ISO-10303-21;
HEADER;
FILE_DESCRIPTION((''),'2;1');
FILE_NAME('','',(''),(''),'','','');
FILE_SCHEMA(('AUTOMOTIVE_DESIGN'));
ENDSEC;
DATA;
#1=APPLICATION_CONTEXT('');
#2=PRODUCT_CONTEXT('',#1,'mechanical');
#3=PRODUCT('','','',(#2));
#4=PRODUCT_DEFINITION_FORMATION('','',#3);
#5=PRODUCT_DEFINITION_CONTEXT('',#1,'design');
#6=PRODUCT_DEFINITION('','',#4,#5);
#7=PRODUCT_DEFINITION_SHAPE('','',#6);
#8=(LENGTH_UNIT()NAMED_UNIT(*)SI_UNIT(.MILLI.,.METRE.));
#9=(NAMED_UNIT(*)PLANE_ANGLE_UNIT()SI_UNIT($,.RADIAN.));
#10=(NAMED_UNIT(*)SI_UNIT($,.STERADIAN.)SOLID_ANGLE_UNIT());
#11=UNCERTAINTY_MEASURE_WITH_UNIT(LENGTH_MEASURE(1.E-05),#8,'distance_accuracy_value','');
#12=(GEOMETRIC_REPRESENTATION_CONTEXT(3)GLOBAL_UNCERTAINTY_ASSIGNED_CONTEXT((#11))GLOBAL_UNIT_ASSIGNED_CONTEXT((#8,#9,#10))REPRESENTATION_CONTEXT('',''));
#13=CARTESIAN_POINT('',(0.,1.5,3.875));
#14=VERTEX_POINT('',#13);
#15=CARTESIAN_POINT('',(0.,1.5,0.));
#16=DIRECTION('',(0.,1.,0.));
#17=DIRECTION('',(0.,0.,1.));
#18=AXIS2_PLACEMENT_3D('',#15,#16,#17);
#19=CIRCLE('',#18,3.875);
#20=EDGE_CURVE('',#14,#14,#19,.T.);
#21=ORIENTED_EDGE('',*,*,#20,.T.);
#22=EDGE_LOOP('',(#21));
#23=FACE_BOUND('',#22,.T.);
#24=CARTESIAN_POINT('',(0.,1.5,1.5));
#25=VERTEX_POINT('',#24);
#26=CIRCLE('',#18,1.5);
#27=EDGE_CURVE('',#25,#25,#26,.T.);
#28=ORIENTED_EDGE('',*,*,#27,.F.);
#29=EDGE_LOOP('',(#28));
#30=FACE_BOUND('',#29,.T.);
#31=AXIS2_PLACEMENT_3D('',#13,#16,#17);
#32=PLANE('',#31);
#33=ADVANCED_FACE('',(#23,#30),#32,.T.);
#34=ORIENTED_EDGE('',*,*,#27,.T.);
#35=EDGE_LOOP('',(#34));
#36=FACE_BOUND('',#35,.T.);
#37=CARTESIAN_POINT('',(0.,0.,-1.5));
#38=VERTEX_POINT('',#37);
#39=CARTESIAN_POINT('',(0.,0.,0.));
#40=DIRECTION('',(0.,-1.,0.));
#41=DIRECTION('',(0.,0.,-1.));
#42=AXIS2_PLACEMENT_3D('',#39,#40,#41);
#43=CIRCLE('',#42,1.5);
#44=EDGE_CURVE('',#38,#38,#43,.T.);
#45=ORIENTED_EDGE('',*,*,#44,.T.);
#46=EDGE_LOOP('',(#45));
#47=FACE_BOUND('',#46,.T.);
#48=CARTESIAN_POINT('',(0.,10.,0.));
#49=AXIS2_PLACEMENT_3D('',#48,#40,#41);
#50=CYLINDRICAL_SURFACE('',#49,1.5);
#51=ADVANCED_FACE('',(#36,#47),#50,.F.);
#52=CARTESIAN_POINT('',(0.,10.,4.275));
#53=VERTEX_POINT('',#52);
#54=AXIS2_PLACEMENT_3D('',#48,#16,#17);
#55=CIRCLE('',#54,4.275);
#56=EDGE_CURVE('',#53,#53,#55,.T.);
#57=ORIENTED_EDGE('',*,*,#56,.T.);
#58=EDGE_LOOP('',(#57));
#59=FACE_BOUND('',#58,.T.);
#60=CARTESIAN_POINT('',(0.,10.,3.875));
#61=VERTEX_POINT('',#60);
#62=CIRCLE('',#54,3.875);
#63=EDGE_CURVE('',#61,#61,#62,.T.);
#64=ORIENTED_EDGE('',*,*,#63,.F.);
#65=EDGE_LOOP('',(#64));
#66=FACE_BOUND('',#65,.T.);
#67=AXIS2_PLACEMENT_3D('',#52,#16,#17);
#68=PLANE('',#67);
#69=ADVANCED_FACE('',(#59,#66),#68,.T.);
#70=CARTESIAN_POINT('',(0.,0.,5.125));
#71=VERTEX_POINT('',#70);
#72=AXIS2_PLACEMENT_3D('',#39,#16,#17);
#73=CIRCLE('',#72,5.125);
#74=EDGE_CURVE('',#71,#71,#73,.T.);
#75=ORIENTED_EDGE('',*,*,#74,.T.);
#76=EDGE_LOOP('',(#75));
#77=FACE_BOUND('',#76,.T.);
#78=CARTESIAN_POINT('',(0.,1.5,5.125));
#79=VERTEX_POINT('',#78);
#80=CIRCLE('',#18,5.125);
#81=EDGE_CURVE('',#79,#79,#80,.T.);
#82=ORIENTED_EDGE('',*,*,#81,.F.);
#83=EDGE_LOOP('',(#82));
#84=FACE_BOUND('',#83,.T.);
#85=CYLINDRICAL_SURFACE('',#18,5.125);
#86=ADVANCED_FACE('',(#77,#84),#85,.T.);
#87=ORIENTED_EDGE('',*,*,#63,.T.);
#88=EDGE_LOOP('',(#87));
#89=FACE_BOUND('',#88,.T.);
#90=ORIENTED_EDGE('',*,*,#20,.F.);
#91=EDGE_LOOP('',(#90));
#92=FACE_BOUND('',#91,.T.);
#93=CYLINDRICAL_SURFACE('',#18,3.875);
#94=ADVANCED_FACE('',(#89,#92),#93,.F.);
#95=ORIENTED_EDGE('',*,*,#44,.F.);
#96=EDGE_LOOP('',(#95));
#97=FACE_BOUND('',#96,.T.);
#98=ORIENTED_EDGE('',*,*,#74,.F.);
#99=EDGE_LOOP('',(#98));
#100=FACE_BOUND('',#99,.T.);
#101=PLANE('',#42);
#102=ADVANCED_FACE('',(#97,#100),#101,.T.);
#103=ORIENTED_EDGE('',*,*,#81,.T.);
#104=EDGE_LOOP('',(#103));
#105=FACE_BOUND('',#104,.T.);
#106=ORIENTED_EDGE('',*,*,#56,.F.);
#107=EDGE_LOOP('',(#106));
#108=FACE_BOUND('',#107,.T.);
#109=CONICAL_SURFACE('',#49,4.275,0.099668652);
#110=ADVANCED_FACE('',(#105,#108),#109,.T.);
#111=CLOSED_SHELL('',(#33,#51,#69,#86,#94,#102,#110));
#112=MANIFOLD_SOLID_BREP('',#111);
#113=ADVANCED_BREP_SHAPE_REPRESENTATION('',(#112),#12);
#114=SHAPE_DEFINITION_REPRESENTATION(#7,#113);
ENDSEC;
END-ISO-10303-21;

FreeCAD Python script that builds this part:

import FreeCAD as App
import Part
import Sketcher
from FreeCAD import Vector
Q = App.Units.Quantity


def add_polygon(sketch, points):
    """Adds a closed chain of lines whose ends are joined by coincident constraints."""
    first, n = sketch.GeometryCount, len(points)
    for a, b in zip(points, points[1:] + points[:1]):
        sketch.addGeometry(Part.LineSegment(App.Vector(*a, 0), App.Vector(*b, 0)), False)
    for i in range(n):
        sketch.addConstraint(Sketcher.Constraint("Coincident", first + i, 2, first + (i + 1) % n, 1))

doc = App.newDocument("Part")
body = doc.addObject("PartDesign::Body", "Body")

# Sketch on YZ plane
sketch1 = doc.addObject("Sketcher::SketchObject", "Sketch")
body.addObject(sketch1)
sketch1.AttachmentSupport = (doc.YZ_Plane, [""])
sketch1.MapMode = "FlatFace"
add_polygon(sketch1, [(0, 5.12), (0, 0), (1.5, 0), (1.5, 3.88), (10, 3.88), (10, 4.28), (1.5, 5.12)])  # lines 0-6
sketch1.addConstraint([
    Sketcher.Constraint("Vertical", 0),
    Sketcher.Constraint("Horizontal", 1),
    Sketcher.Constraint("Vertical", 2),
    Sketcher.Constraint("Horizontal", 3),
    Sketcher.Constraint("Vertical", 4),
    Sketcher.Constraint("Horizontal", 6),
    Sketcher.Constraint("Coincident", 0, 2, -1, 1),
    Sketcher.Constraint("Vertical", 2, 2, 5, 2),
    Sketcher.Constraint("DistanceX", 1, 1, 1, 2, Q("1.5 mm")),
    Sketcher.Constraint("DistanceX", 3, 1, 3, 2, Q("8.5 mm")),
    Sketcher.Constraint("DistanceY", 4, 1, 4, 2, Q("0.4 mm")),
    Sketcher.Constraint("DistanceY", 0, 2, 0, 1, Q("5.125 mm")),
    Sketcher.Constraint("DistanceY", 2, 1, 2, 2, Q("3.875 mm")),
])
revolution = doc.addObject("PartDesign::Revolution", "Revolution")
body.addObject(revolution)
revolution.Profile = sketch1
revolution.ReferenceAxis = (sketch1, ["H_Axis"])
revolution.Angle = 360

# Sketch on XZ plane
sketch2 = doc.addObject("Sketcher::SketchObject", "Sketch001")
body.addObject(sketch2)
sketch2.AttachmentSupport = (doc.XZ_Plane, [""])
sketch2.MapMode = "FlatFace"
sketch2.addGeometry(Part.Circle(Vector(0, 0, 0), Vector(0, 0, 1), 1.5), False)
sketch2.addConstraint([
    Sketcher.Constraint("Coincident", 0, 3, -1, 1),
    Sketcher.Constraint("Diameter", 0, Q("3 mm")),
])
pocket1 = doc.addObject("PartDesign::Pocket", "Pocket")
body.addObject(pocket1)
pocket1.Profile = sketch2
pocket1.Type = "ThroughAll"

doc.recompute()
